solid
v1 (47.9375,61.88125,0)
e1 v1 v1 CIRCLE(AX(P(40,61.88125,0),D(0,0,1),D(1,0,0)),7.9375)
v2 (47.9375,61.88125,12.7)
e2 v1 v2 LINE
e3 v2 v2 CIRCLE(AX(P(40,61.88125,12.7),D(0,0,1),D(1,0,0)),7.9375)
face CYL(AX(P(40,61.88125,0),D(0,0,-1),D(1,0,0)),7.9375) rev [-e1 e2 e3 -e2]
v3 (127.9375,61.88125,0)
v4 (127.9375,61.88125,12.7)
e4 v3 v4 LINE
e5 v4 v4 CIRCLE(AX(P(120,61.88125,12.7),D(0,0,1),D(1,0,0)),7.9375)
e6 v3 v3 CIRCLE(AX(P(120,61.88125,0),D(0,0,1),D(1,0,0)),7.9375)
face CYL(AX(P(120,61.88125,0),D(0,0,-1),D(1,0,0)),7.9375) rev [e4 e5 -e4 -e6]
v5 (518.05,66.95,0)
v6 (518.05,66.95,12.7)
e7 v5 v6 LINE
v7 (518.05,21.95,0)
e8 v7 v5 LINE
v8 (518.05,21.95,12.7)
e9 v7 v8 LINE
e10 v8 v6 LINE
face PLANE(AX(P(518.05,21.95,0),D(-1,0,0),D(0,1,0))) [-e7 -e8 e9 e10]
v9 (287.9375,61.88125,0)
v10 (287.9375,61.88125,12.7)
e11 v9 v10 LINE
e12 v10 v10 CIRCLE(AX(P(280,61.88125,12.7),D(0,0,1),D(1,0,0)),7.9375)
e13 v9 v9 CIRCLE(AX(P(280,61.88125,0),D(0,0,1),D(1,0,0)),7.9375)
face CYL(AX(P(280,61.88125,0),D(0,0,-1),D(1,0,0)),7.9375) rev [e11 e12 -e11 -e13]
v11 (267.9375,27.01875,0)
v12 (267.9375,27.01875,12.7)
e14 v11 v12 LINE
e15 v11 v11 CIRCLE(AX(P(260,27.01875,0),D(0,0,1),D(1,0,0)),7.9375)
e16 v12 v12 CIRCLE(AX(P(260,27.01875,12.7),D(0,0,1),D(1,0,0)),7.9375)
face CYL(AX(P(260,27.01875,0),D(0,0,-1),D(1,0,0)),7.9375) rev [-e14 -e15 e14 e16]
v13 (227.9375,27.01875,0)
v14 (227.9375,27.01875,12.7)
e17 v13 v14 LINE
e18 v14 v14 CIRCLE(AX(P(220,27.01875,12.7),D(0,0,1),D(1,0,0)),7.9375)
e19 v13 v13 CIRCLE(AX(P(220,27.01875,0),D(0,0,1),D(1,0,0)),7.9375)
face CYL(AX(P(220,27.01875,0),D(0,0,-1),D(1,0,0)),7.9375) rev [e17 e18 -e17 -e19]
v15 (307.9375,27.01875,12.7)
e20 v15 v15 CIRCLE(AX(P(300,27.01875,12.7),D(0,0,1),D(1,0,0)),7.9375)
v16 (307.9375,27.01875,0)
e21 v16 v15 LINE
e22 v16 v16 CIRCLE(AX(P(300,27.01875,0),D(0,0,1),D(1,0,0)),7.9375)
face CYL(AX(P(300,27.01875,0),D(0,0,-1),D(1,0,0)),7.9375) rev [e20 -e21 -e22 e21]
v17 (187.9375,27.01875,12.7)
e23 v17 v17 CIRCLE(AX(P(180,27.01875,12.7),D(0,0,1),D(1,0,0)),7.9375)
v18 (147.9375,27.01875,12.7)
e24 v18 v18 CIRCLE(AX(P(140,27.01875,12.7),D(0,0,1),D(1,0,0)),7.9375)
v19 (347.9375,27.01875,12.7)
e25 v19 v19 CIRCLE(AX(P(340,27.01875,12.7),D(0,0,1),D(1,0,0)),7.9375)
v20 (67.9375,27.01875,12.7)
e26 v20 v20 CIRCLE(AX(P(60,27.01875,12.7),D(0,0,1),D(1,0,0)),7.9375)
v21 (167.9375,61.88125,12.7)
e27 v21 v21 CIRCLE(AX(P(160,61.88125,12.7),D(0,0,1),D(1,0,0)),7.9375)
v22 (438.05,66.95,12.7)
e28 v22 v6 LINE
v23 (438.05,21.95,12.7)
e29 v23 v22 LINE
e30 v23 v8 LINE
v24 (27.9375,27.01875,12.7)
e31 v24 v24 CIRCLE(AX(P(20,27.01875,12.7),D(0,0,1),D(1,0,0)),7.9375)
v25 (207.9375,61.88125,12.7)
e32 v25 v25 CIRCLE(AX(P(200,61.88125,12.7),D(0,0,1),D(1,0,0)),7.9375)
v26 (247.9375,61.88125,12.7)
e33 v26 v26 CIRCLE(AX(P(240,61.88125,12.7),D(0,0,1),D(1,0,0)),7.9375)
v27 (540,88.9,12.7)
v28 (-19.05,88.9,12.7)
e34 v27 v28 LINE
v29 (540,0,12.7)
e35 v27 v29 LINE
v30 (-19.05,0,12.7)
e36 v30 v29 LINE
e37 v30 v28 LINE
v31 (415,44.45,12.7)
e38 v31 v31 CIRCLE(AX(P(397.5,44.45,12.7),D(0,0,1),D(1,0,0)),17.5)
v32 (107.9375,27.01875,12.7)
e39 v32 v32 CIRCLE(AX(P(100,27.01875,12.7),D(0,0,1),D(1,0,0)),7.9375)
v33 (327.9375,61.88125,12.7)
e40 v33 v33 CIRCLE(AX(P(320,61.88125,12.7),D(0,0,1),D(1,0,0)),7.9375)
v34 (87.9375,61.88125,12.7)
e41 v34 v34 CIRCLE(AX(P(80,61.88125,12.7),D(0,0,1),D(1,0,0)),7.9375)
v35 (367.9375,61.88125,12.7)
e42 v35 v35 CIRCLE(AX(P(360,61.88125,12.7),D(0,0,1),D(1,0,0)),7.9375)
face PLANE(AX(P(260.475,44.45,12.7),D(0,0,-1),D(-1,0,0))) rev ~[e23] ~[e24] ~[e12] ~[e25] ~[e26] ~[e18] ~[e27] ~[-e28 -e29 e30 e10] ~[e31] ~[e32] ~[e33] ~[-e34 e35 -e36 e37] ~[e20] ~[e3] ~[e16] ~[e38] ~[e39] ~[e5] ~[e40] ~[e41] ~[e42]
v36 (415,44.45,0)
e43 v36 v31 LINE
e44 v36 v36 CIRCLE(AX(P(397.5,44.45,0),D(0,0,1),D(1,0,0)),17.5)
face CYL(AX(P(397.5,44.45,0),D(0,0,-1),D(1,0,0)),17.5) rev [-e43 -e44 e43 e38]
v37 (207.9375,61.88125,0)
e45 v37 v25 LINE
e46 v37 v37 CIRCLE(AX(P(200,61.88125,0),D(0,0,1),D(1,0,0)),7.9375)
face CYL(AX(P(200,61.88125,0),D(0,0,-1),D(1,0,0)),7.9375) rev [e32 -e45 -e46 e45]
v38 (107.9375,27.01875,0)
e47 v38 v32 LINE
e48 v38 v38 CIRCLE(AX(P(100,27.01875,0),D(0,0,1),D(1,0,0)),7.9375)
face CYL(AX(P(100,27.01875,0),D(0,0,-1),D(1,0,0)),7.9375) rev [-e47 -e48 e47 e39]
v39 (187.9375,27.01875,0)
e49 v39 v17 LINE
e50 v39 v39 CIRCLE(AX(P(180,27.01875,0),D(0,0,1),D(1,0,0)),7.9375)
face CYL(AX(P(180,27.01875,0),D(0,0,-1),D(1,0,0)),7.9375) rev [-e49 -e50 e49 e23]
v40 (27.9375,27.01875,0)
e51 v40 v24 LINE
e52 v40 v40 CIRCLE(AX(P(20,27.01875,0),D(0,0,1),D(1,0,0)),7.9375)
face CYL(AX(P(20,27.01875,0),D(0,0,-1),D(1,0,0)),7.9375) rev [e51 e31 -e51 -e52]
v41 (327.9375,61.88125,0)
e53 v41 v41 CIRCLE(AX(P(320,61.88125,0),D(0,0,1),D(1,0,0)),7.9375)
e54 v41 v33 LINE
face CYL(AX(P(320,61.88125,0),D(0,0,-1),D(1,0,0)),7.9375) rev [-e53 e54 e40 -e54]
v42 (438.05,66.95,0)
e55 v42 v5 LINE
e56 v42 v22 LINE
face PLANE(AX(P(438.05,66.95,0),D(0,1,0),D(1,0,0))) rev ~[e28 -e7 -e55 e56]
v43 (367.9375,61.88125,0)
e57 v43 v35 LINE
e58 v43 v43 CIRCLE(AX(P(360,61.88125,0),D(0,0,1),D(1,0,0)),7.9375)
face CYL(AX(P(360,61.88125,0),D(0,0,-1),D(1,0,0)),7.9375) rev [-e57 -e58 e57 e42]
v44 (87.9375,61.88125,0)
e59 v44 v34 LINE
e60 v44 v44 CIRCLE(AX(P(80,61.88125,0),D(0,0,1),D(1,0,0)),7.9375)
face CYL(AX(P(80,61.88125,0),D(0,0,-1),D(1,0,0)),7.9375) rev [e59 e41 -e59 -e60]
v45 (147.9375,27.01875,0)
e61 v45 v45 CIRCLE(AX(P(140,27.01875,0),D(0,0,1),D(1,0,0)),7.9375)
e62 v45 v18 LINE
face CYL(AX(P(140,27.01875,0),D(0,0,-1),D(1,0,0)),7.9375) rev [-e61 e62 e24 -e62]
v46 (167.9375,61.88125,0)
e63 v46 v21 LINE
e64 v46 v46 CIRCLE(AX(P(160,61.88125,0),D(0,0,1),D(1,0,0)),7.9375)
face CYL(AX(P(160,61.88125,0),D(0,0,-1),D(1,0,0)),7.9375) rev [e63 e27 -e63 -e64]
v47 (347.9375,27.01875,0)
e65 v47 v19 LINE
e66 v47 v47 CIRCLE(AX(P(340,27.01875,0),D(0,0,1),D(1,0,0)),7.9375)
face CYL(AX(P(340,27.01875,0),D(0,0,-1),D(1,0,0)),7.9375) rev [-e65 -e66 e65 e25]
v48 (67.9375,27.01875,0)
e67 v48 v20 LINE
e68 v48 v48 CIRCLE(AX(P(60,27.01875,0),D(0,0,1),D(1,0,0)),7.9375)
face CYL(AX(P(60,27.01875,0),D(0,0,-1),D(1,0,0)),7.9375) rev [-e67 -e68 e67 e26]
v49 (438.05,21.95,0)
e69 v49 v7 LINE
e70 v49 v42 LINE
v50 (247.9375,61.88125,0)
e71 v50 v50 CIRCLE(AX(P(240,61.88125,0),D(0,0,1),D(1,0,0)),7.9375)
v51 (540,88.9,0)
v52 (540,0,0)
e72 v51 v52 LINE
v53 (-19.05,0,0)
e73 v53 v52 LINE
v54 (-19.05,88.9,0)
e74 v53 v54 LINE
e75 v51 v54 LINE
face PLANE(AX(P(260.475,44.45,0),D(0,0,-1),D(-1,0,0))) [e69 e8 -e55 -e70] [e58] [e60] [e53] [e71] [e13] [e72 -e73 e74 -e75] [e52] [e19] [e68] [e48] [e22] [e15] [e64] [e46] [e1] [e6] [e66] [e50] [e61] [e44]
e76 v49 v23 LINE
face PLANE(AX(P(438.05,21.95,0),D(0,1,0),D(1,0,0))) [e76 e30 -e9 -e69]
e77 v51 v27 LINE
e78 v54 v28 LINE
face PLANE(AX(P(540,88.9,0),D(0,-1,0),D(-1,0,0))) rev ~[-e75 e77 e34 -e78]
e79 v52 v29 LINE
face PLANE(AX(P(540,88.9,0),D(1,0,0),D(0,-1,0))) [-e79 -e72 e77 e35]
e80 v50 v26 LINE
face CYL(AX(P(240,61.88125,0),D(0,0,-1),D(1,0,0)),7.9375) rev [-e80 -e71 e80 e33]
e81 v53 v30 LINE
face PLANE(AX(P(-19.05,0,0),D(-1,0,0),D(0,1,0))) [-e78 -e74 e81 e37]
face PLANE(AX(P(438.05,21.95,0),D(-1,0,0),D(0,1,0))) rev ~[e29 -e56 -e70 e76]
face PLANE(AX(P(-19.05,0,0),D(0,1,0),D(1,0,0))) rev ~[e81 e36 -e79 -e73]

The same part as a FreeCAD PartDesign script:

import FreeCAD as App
import Part
import Sketcher

doc = App.newDocument("Part")
params = doc.addObject("Spreadsheet::Sheet", "Params")
for row, (alias, value) in enumerate([
    ("sketch1_diameter", "35 mm"),
    ("sketch1_width", "80 mm"),
    ("sketch1_height", "45 mm"),
    ("sketch1_height2", "88.9 mm"),
    ("sketch1_width2", "559.05 mm"),
    ("pad1_length", "12.7 mm"),
], start=1):
    params.set(f"A{row}", alias)
    params.set(f"B{row}", "=" + value)
    params.setAlias(f"B{row}", alias)

body = doc.addObject("PartDesign::Body", "Body")

sketch1 = doc.addObject("Sketcher::SketchObject", "Sketch")
body.addObject(sketch1)
sketch1.AttachmentSupport = (doc.XY_Plane, [""])
sketch1.MapMode = "FlatFace"
sketch1.addGeometry([
    Part.LineSegment(App.Vector(540, 88.9, 0), App.Vector(-19.05, 88.9, 0)),
    Part.LineSegment(App.Vector(-19.05, 88.9, 0), App.Vector(-19.05, 0, 0)),
    Part.LineSegment(App.Vector(-19.05, 0, 0), App.Vector(540, 0, 0)),
    Part.LineSegment(App.Vector(540, 0, 0), App.Vector(540, 88.9, 0)),
    Part.Circle(App.Vector(340, 27.01875, 0), App.Vector(0, 0, 1), 7.9375),
    Part.Circle(App.Vector(300, 27.01875, 0), App.Vector(0, 0, 1), 7.9375),
    Part.Circle(App.Vector(260, 27.01875, 0), App.Vector(0, 0, 1), 7.9375),
    Part.Circle(App.Vector(220, 27.01875, 0), App.Vector(0, 0, 1), 7.9375),
    Part.Circle(App.Vector(180, 27.01875, 0), App.Vector(0, 0, 1), 7.9375),
    Part.Circle(App.Vector(140, 27.01875, 0), App.Vector(0, 0, 1), 7.9375),
    Part.Circle(App.Vector(100, 27.01875, 0), App.Vector(0, 0, 1), 7.9375),
    Part.Circle(App.Vector(60, 27.01875, 0), App.Vector(0, 0, 1), 7.9375),
    Part.Circle(App.Vector(20, 27.01875, 0), App.Vector(0, 0, 1), 7.9375),
    Part.LineSegment(App.Vector(438.05, 21.95, 0), App.Vector(438.05, 66.95, 0)),
    Part.LineSegment(App.Vector(438.05, 66.95, 0), App.Vector(518.05, 66.95, 0)),
    Part.LineSegment(App.Vector(518.05, 66.95, 0), App.Vector(518.05, 21.95, 0)),
    Part.LineSegment(App.Vector(518.05, 21.95, 0), App.Vector(438.05, 21.95, 0)),
    Part.Circle(App.Vector(397.5, 44.45, 0), App.Vector(0, 0, 1), 17.5),
    Part.Circle(App.Vector(360, 61.88125, 0), App.Vector(0, 0, 1), 7.9375),
    Part.Circle(App.Vector(320, 61.88125, 0), App.Vector(0, 0, 1), 7.9375),
    Part.Circle(App.Vector(280, 61.88125, 0), App.Vector(0, 0, 1), 7.9375),
    Part.Circle(App.Vector(240, 61.88125, 0), App.Vector(0, 0, 1), 7.9375),
    Part.Circle(App.Vector(200, 61.88125, 0), App.Vector(0, 0, 1), 7.9375),
    Part.Circle(App.Vector(160, 61.88125, 0), App.Vector(0, 0, 1), 7.9375),
    Part.Circle(App.Vector(120, 61.88125, 0), App.Vector(0, 0, 1), 7.9375),
    Part.Circle(App.Vector(80, 61.88125, 0), App.Vector(0, 0, 1), 7.9375),
    Part.Circle(App.Vector(40, 61.88125, 0), App.Vector(0, 0, 1), 7.9375),
], False)
sketch1.addConstraint([
    Sketcher.Constraint("Coincident", 0, 2, 1, 1),
    Sketcher.Constraint("Coincident", 1, 2, 2, 1),
    Sketcher.Constraint("Coincident", 2, 2, 3, 1),
    Sketcher.Constraint("Coincident", 3, 2, 0, 1),
    Sketcher.Constraint("Coincident", 13, 2, 14, 1),
    Sketcher.Constraint("Coincident", 14, 2, 15, 1),
    Sketcher.Constraint("Coincident", 15, 2, 16, 1),
    Sketcher.Constraint("Coincident", 16, 2, 13, 1),
    Sketcher.Constraint("Horizontal", 0),
    Sketcher.Constraint("Vertical", 1),
    Sketcher.Constraint("Horizontal", 2),
    Sketcher.Constraint("Vertical", 3),
    Sketcher.Constraint("Vertical", 13),
    Sketcher.Constraint("Horizontal", 14),
    Sketcher.Constraint("Vertical", 15),
    Sketcher.Constraint("Horizontal", 16),
    Sketcher.Constraint("Equal", 4, 5),
    Sketcher.Constraint("Equal", 5, 6),
    Sketcher.Constraint("Equal", 6, 7),
    Sketcher.Constraint("Equal", 7, 8),
    Sketcher.Constraint("Equal", 8, 9),
    Sketcher.Constraint("Equal", 9, 10),
    Sketcher.Constraint("Equal", 10, 11),
    Sketcher.Constraint("Equal", 11, 12),
    Sketcher.Constraint("Equal", 12, 18),
    Sketcher.Constraint("Equal", 18, 19),
    Sketcher.Constraint("Equal", 19, 20),
    Sketcher.Constraint("Equal", 20, 21),
    Sketcher.Constraint("Equal", 21, 22),
    Sketcher.Constraint("Equal", 22, 23),
    Sketcher.Constraint("Equal", 23, 24),
    Sketcher.Constraint("Equal", 24, 25),
    Sketcher.Constraint("Equal", 25, 26),
    Sketcher.Constraint("PointOnObject", 1, 2, -1),
    Sketcher.Constraint("Horizontal", 4, 3, 5, 3),
    Sketcher.Constraint("Horizontal", 5, 3, 6, 3),
    Sketcher.Constraint("Horizontal", 6, 3, 7, 3),
    Sketcher.Constraint("Horizontal", 7, 3, 8, 3),
    Sketcher.Constraint("Horizontal", 8, 3, 9, 3),
    Sketcher.Constraint("Horizontal", 9, 3, 10, 3),
    Sketcher.Constraint("Horizontal", 10, 3, 11, 3),
    Sketcher.Constraint("Horizontal", 11, 3, 12, 3),
    Sketcher.Constraint("Horizontal", 18, 3, 19, 3),
    Sketcher.Constraint("Horizontal", 19, 3, 20, 3),
    Sketcher.Constraint("Horizontal", 20, 3, 21, 3),
    Sketcher.Constraint("Horizontal", 21, 3, 22, 3),
    Sketcher.Constraint("Horizontal", 22, 3, 23, 3),
    Sketcher.Constraint("Horizontal", 23, 3, 24, 3),
    Sketcher.Constraint("Horizontal", 24, 3, 25, 3),
    Sketcher.Constraint("Horizontal", 25, 3, 26, 3),
    Sketcher.Constraint("Diameter", 17, 35.0),
    Sketcher.Constraint("DistanceX", 14, 1, 14, 2, 80.0),
    Sketcher.Constraint("DistanceY", 13, 1, 13, 2, 45.0),
    Sketcher.Constraint("Diameter", 4, 15.875),
    Sketcher.Constraint("DistanceY", 1, 2, 1, 1, 88.9),
    Sketcher.Constraint("DistanceX", -1, 1, 4, 3, 340.0),
    Sketcher.Constraint("DistanceX", -1, 1, 5, 3, 300.0),
    Sketcher.Constraint("DistanceX", -1, 1, 6, 3, 260.0),
    Sketcher.Constraint("DistanceX", -1, 1, 7, 3, 220.0),
    Sketcher.Constraint("DistanceX", -1, 1, 8, 3, 180.0),
    Sketcher.Constraint("DistanceX", -1, 1, 9, 3, 140.0),
    Sketcher.Constraint("DistanceX", -1, 1, 10, 3, 100.0),
    Sketcher.Constraint("DistanceX", -1, 1, 11, 3, 60.0),
    Sketcher.Constraint("DistanceX", -1, 1, 12, 3, 20.0),
    Sketcher.Constraint("DistanceX", -1, 1, 18, 3, 360.0),
    Sketcher.Constraint("DistanceX", -1, 1, 19, 3, 320.0),
    Sketcher.Constraint("DistanceX", -1, 1, 20, 3, 280.0),
    Sketcher.Constraint("DistanceX", -1, 1, 21, 3, 240.0),
    Sketcher.Constraint("DistanceX", -1, 1, 22, 3, 200.0),
    Sketcher.Constraint("DistanceX", -1, 1, 23, 3, 160.0),
    Sketcher.Constraint("DistanceX", -1, 1, 24, 3, 120.0),
    Sketcher.Constraint("DistanceX", -1, 1, 25, 3, 80.0),
    Sketcher.Constraint("DistanceX", -1, 1, 26, 3, 40.0),
    Sketcher.Constraint("DistanceX", -1, 1, 2, 2, 540.0),
    Sketcher.Constraint("DistanceX", 0, 2, 0, 1, 559.05),
    Sketcher.Constraint("DistanceX", -1, 1, 17, 3, 397.5),
    Sketcher.Constraint("DistanceY", 17, 3, 13, 2, 22.5),
    Sketcher.Constraint("DistanceY", -1, 1, 17, 3, 44.45),
    Sketcher.Constraint("DistanceX", -1, 1, 13, 2, 438.05),
    Sketcher.Constraint("DistanceY", 4, 3, 18, 3, 34.8625),
    Sketcher.Constraint("DistanceY", -1, 1, 4, 3, 27.01875),
])
sketch1.setExpression("Constraints[50]", "Params.sketch1_diameter")
sketch1.setExpression("Constraints[51]", "Params.sketch1_width")
sketch1.setExpression("Constraints[52]", "Params.sketch1_height")
sketch1.setExpression("Constraints[54]", "Params.sketch1_height2")
sketch1.setExpression("Constraints[74]", "Params.sketch1_width2")
pad1 = doc.addObject("PartDesign::Pad", "Pad")
body.addObject(pad1)
pad1.Profile = sketch1
pad1.setExpression("Length", "Params.pad1_length")

doc.recompute()
